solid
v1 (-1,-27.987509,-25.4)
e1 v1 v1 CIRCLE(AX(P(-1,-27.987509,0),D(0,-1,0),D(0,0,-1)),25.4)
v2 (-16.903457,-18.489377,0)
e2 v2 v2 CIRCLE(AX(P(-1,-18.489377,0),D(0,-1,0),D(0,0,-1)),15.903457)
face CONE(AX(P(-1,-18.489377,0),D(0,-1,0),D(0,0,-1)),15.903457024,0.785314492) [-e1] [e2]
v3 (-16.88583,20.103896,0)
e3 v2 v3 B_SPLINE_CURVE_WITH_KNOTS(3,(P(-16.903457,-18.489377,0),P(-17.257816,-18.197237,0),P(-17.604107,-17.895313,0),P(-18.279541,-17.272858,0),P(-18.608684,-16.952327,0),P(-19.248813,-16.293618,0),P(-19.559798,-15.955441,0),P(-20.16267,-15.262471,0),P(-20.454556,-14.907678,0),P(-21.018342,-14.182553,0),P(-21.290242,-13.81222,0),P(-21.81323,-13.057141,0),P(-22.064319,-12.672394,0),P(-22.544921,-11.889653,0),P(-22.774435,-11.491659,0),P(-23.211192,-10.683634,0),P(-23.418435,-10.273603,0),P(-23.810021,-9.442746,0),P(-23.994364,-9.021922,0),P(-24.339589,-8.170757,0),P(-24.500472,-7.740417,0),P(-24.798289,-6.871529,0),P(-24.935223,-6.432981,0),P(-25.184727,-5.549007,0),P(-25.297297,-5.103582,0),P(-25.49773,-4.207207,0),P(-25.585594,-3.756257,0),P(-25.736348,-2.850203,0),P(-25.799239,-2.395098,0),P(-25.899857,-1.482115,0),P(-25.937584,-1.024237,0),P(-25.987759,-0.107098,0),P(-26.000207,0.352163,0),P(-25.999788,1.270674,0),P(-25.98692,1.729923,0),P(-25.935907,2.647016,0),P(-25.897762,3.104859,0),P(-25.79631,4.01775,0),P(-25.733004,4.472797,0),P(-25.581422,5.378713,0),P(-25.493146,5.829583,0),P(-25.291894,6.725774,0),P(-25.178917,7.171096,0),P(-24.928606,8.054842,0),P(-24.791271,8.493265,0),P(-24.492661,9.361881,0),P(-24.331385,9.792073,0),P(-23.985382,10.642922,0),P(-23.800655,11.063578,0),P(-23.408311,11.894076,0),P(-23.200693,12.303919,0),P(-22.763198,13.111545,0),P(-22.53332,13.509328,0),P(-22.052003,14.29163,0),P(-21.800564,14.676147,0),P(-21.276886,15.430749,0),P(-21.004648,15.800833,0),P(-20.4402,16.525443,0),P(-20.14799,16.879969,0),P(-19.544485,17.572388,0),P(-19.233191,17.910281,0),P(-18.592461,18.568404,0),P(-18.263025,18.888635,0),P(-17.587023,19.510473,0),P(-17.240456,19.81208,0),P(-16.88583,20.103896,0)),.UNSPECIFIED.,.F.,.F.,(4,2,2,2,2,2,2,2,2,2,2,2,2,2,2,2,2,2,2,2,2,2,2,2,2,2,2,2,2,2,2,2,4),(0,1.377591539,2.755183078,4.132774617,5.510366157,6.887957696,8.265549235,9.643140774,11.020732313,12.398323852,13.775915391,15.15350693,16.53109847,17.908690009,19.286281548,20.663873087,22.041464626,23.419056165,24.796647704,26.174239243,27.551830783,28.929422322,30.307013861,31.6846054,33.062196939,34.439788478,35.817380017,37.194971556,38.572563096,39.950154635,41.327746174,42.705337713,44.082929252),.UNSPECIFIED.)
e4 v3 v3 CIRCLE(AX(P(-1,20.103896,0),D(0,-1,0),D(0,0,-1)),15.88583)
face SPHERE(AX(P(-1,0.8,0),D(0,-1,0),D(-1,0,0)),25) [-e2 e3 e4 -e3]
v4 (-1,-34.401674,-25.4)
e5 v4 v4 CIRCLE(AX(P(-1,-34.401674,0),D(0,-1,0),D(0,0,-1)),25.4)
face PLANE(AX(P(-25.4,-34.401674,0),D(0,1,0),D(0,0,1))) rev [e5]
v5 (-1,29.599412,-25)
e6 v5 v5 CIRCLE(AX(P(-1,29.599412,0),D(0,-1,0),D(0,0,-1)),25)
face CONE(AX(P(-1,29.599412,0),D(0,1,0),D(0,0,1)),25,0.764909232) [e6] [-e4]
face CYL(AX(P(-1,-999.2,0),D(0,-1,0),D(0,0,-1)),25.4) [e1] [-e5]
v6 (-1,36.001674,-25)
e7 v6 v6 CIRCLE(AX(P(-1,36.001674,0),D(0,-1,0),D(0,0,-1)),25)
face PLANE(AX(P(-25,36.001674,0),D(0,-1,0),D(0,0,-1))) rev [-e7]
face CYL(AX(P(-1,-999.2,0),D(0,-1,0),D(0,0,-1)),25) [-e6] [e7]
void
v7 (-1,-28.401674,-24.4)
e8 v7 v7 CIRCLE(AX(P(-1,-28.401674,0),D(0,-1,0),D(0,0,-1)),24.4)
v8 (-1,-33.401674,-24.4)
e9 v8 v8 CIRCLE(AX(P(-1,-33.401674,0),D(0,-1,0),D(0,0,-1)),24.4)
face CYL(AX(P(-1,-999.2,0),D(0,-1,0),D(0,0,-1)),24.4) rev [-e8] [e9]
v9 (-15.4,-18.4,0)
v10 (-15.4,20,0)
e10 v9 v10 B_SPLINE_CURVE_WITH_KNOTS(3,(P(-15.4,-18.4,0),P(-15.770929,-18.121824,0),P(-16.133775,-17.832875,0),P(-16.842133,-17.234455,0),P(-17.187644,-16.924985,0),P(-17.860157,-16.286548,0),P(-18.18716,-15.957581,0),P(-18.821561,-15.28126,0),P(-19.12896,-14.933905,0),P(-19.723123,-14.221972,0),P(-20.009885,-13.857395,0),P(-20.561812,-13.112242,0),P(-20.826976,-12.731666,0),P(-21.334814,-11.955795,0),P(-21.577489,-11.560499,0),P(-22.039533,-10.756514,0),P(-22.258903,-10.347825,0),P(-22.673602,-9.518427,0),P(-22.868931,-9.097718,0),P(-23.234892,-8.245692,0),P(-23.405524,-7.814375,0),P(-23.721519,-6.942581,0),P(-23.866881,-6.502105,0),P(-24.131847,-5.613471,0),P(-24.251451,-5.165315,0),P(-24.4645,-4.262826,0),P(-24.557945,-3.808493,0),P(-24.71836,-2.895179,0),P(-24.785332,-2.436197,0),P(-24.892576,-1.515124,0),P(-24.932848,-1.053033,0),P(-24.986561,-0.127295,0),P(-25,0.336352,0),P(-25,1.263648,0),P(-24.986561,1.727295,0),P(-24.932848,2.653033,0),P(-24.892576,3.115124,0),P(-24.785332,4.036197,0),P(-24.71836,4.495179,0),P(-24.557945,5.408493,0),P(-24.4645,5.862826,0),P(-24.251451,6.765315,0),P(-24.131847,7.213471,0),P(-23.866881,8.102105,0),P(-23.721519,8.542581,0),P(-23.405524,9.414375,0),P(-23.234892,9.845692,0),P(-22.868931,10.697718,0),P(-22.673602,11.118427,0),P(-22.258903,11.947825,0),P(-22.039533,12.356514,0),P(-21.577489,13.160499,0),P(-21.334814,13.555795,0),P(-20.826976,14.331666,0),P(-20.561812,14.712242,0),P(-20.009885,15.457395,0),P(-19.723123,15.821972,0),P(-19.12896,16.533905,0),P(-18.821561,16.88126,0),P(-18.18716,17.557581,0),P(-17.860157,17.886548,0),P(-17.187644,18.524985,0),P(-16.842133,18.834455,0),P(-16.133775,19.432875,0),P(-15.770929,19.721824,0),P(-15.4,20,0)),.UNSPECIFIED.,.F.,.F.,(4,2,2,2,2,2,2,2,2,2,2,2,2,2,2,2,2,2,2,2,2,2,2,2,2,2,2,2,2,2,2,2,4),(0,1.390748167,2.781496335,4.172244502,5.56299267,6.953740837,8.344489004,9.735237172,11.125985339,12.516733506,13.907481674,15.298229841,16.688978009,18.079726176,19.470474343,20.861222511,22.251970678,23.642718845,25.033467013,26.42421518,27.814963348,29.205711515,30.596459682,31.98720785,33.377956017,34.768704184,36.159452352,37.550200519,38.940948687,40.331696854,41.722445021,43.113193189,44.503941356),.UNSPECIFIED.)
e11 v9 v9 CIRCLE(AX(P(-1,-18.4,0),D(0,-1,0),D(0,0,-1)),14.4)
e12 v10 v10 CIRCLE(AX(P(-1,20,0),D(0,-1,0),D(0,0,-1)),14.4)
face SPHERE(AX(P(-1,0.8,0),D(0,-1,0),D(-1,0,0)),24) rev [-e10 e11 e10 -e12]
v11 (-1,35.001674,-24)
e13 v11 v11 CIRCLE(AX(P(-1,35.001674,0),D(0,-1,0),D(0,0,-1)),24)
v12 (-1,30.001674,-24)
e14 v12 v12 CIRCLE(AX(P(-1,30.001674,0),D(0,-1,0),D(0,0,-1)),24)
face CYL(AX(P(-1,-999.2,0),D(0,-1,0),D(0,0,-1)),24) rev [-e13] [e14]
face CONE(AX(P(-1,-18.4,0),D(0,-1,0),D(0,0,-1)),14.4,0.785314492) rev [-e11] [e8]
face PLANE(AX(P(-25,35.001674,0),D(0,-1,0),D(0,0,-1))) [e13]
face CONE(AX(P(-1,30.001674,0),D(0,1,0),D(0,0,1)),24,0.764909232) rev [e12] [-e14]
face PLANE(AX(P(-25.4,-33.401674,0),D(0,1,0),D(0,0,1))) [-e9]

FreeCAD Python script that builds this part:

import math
import FreeCAD as App
import Part
import Sketcher
Q = App.Units.Quantity

doc = App.newDocument("Part")
body = doc.addObject("PartDesign::Body", "Body")

sketch1 = doc.addObject("Sketcher::SketchObject", "Sketch")
body.addObject(sketch1)
sketch1.AttachmentSupport = (doc.XY_Plane, [""])
sketch1.MapMode = "FlatFace"
sketch1.addGeometry(Part.LineSegment(App.Vector(-1, -33.4, 0), App.Vector(-25.4, -33.4, 0)), False)
sketch1.addGeometry(Part.LineSegment(App.Vector(-25.4, -33.4, 0), App.Vector(-25.4, -28.4, 0)), False)
sketch1.addGeometry(Part.LineSegment(App.Vector(-25.4, -28.4, 0), App.Vector(-15.4, -18.4, 0)), False)
sketch1.addGeometry(Part.ArcOfCircle(Part.Circle(App.Vector(-1, 0.8, 0), App.Vector(0, 0, 1), 24), math.radians(127), math.radians(233)), False)
sketch1.addGeometry(Part.LineSegment(App.Vector(-15.4, 20, 0), App.Vector(-25, 30, 0)), False)
sketch1.addGeometry(Part.LineSegment(App.Vector(-25, 30, 0), App.Vector(-25, 35, 0)), False)
sketch1.addGeometry(Part.LineSegment(App.Vector(-25, 35, 0), App.Vector(-1, 35, 0)), False)
sketch1.addGeometry(Part.LineSegment(App.Vector(-1, 35, 0), App.Vector(-1, 36, 0)), False)
sketch1.addGeometry(Part.LineSegment(App.Vector(-1, 36, 0), App.Vector(-26, 36, 0)), False)
sketch1.addGeometry(Part.LineSegment(App.Vector(-26, 36, 0), App.Vector(-26, 29.6, 0)), False)
sketch1.addGeometry(Part.LineSegment(App.Vector(-26, 29.6, 0), App.Vector(-16.9, 20.1, 0)), False)
sketch1.addGeometry(Part.ArcOfCircle(Part.Circle(App.Vector(-1, 0.8, 0), App.Vector(0, 0, 1), 25), math.radians(129), math.radians(230)), False)
sketch1.addGeometry(Part.LineSegment(App.Vector(-16.9, -18.5, 0), App.Vector(-26.4, -28, 0)), False)
sketch1.addGeometry(Part.LineSegment(App.Vector(-26.4, -28, 0), App.Vector(-26.4, -34.4, 0)), False)
sketch1.addGeometry(Part.LineSegment(App.Vector(-26.4, -34.4, 0), App.Vector(-1, -34.4, 0)), False)
sketch1.addGeometry(Part.LineSegment(App.Vector(-1, -34.4, 0), App.Vector(-1, -33.4, 0)), False)
sketch1.addGeometry(Part.LineSegment(App.Vector(-1, -34.4, 0), App.Vector(-1, 36, 0)), True)
sketch1.addConstraint(Sketcher.Constraint("Coincident", 0, 2, 1, 1))
sketch1.addConstraint(Sketcher.Constraint("Coincident", 1, 2, 2, 1))
sketch1.addConstraint(Sketcher.Constraint("Coincident", 2, 2, 3, 2))
sketch1.addConstraint(Sketcher.Constraint("Coincident", 3, 1, 4, 1))
sketch1.addConstraint(Sketcher.Constraint("Coincident", 4, 2, 5, 1))
sketch1.addConstraint(Sketcher.Constraint("Coincident", 5, 2, 6, 1))
sketch1.addConstraint(Sketcher.Constraint("Coincident", 6, 2, 7, 1))
sketch1.addConstraint(Sketcher.Constraint("Coincident", 7, 2, 8, 1))
sketch1.addConstraint(Sketcher.Constraint("Coincident", 8, 2, 9, 1))
sketch1.addConstraint(Sketcher.Constraint("Coincident", 9, 2, 10, 1))
sketch1.addConstraint(Sketcher.Constraint("Coincident", 10, 2, 11, 1))
sketch1.addConstraint(Sketcher.Constraint("Coincident", 11, 2, 12, 1))
sketch1.addConstraint(Sketcher.Constraint("Coincident", 12, 2, 13, 1))
sketch1.addConstraint(Sketcher.Constraint("Coincident", 13, 2, 14, 1))
sketch1.addConstraint(Sketcher.Constraint("Coincident", 14, 2, 15, 1))
sketch1.addConstraint(Sketcher.Constraint("Coincident", 15, 2, 0, 1))
sketch1.addConstraint(Sketcher.Constraint("Horizontal", 0))
sketch1.addConstraint(Sketcher.Constraint("Vertical", 1))
sketch1.addConstraint(Sketcher.Constraint("Vertical", 5))
sketch1.addConstraint(Sketcher.Constraint("Horizontal", 6))
sketch1.addConstraint(Sketcher.Constraint("Vertical", 7))
sketch1.addConstraint(Sketcher.Constraint("Horizontal", 8))
sketch1.addConstraint(Sketcher.Constraint("Vertical", 9))
sketch1.addConstraint(Sketcher.Constraint("Vertical", 13))
sketch1.addConstraint(Sketcher.Constraint("Horizontal", 14))
sketch1.addConstraint(Sketcher.Constraint("Vertical", 15))
sketch1.addConstraint(Sketcher.Constraint("Vertical", 16))
sketch1.addConstraint(Sketcher.Constraint("Coincident", 11, 3, 3, 3))
sketch1.addConstraint(Sketcher.Constraint("Coincident", 16, 1, 14, 2))
sketch1.addConstraint(Sketcher.Constraint("Coincident", 16, 2, 7, 2))
sketch1.addConstraint(Sketcher.Constraint("Parallel", 4, 10))
sketch1.addConstraint(Sketcher.Constraint("Parallel", 2, 12))
sketch1.addConstraint(Sketcher.Constraint("Vertical", 2, 2, 3, 1))
sketch1.addConstraint(Sketcher.Constraint("Vertical", 11, 3, 6, 2))
sketch1.addConstraint(Sketcher.Constraint("Equal", 1, 5))
sketch1.addConstraint(Sketcher.Constraint("Equal", 7, 15))
sketch1.addConstraint(Sketcher.Constraint("Radius", 3, Q("24 mm")))
sketch1.addConstraint(Sketcher.Constraint("Radius", 11, Q("25 mm")))
sketch1.addConstraint(Sketcher.Constraint("DistanceX", 6, 1, 6, 2, Q("24 mm")))
sketch1.addConstraint(Sketcher.Constraint("DistanceX", 8, 2, 8, 1, Q("25 mm")))
sketch1.addConstraint(Sketcher.Constraint("DistanceY", 1, 1, 1, 2, Q("5 mm")))
sketch1.addConstraint(Sketcher.Constraint("DistanceY", 7, 1, 7, 2, Q("1 mm")))
sketch1.addConstraint(Sketcher.Constraint("DistanceX", 0, 2, 0, 1, Q("24.4 mm")))
sketch1.addConstraint(Sketcher.Constraint("DistanceX", 14, 1, 14, 2, Q("25.4 mm")))
sketch1.addConstraint(Sketcher.Constraint("DistanceX", 3, 3, -1, 1, Q("1 mm")))
sketch1.addConstraint(Sketcher.Constraint("DistanceY", -1, 1, 3, 1, Q("20 mm")))
sketch1.addConstraint(Sketcher.Constraint("DistanceX", 1, 2, 2, 2, Q("10 mm")))
sketch1.addConstraint(Sketcher.Constraint("DistanceY", 9, 2, 9, 1, Q("6.402262 mm")))
sketch1.addConstraint(Sketcher.Constraint("Distance", 2, Q("14.143319 mm")))
sketch1.addConstraint(Sketcher.Constraint("DistanceY", 13, 2, 13, 1, Q("6.414165 mm")))
sketch1.addConstraint(Sketcher.Constraint("DistanceY", 16, 1, 16, 2, Q("70.403347 mm")))
revolution = doc.addObject("PartDesign::Revolution", "Revolution")
body.addObject(revolution)
revolution.Profile = sketch1
revolution.ReferenceAxis = (sketch1, ["Axis0"])
revolution.Angle = 360

doc.recompute()
